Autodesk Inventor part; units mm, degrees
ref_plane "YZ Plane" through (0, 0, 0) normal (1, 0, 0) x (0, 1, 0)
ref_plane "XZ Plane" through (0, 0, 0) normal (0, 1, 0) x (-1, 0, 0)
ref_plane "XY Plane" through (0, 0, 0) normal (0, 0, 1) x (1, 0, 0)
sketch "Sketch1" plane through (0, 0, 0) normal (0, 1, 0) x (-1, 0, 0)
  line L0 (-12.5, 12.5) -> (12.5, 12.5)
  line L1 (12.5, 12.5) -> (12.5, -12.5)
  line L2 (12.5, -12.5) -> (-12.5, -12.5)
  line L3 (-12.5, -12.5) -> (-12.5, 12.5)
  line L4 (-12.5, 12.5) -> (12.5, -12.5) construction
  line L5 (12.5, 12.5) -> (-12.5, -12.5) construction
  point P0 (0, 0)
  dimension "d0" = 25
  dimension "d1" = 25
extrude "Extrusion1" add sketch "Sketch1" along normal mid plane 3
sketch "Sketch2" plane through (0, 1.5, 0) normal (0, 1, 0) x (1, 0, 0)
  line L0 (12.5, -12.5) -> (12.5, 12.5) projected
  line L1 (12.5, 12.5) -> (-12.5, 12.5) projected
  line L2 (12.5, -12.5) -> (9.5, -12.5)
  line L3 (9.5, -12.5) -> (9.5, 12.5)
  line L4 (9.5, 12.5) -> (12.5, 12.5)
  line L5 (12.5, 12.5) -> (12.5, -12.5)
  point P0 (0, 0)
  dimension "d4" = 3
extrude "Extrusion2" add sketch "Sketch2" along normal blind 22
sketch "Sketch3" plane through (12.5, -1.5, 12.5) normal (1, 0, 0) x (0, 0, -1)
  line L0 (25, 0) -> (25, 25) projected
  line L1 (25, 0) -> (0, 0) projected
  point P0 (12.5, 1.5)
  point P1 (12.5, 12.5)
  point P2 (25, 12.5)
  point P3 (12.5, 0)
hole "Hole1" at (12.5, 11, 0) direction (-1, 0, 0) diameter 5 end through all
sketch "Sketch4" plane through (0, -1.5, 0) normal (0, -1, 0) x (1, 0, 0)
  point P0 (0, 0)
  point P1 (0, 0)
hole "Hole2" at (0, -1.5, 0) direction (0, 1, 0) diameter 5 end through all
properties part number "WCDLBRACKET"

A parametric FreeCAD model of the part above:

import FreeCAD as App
import Part
import Sketcher

doc = App.newDocument("Part")
body = doc.addObject("PartDesign::Body", "Body")

# Sketch on XZ plane
sketch1 = body.newObject("Sketcher::SketchObject", "Sketch")
sketch1.AttachmentSupport = (doc.getObject("XZ_Plane"), [""])
sketch1.MapMode = "FlatFace"
sketch1.addGeometry(Part.LineSegment(App.Vector(-12.5, 12.5, 0), App.Vector(12.5, 12.5, 0)), False)
sketch1.addGeometry(Part.LineSegment(App.Vector(12.5, 12.5, 0), App.Vector(12.5, -12.5, 0)), False)
sketch1.addGeometry(Part.LineSegment(App.Vector(12.5, -12.5, 0), App.Vector(-12.5, -12.5, 0)), False)
sketch1.addGeometry(Part.LineSegment(App.Vector(-12.5, -12.5, 0), App.Vector(-12.5, 12.5, 0)), False)
sketch1.addConstraint(Sketcher.Constraint("Coincident", 0, 2, 1, 1))
sketch1.addConstraint(Sketcher.Constraint("Coincident", 1, 2, 2, 1))
sketch1.addConstraint(Sketcher.Constraint("Coincident", 2, 2, 3, 1))
sketch1.addConstraint(Sketcher.Constraint("Coincident", 3, 2, 0, 1))
sketch1.addConstraint(Sketcher.Constraint("Horizontal", 0))
sketch1.addConstraint(Sketcher.Constraint("Vertical", 1))
sketch1.addConstraint(Sketcher.Constraint("Horizontal", 2))
sketch1.addConstraint(Sketcher.Constraint("Vertical", 3))
sketch1.addConstraint(Sketcher.Constraint("Symmetric", 0, 2, 2, 2, -1, 1))
sketch1.addConstraint(Sketcher.Constraint("Equal", 2, 1))
sketch1.addConstraint(Sketcher.Constraint("DistanceX", 0, 1, 0, 2, 25.0))
pad1 = body.newObject("PartDesign::Pad", "Pad")
pad1.Profile = sketch1
pad1.Length = 3
pad1.Midplane = True

# Sketch on XZ plane
sketch2 = body.newObject("Sketcher::SketchObject", "Sketch001")
sketch2.AttachmentSupport = (doc.getObject("XZ_Plane"), [""])
sketch2.MapMode = "FlatFace"
sketch2.AttachmentOffset = App.Placement(App.Vector(0, 0, -1.5), App.Rotation())
sketch2.addGeometry(Part.LineSegment(App.Vector(9.5, 12.5, 0), App.Vector(12.5, 12.5, 0)), False)
sketch2.addGeometry(Part.LineSegment(App.Vector(12.5, 12.5, 0), App.Vector(12.5, -12.5, 0)), False)
sketch2.addGeometry(Part.LineSegment(App.Vector(12.5, -12.5, 0), App.Vector(9.5, -12.5, 0)), False)
sketch2.addGeometry(Part.LineSegment(App.Vector(9.5, -12.5, 0), App.Vector(9.5, 12.5, 0)), False)
sketch2.addConstraint(Sketcher.Constraint("Coincident", 0, 2, 1, 1))
sketch2.addConstraint(Sketcher.Constraint("Coincident", 1, 2, 2, 1))
sketch2.addConstraint(Sketcher.Constraint("Coincident", 2, 2, 3, 1))
sketch2.addConstraint(Sketcher.Constraint("Coincident", 3, 2, 0, 1))
sketch2.addConstraint(Sketcher.Constraint("Horizontal", 0))
sketch2.addConstraint(Sketcher.Constraint("Vertical", 1))
sketch2.addConstraint(Sketcher.Constraint("Horizontal", 2))
sketch2.addConstraint(Sketcher.Constraint("Vertical", 3))
sketch2.addConstraint(Sketcher.Constraint("DistanceX", 0, 1, 0, 2, 3.0))
sketch2.addConstraint(Sketcher.Constraint("DistanceY", 1, 2, 1, 1, 25.0))
sketch2.addConstraint(Sketcher.Constraint("DistanceX", -1, 1, 0, 2, 12.5))
sketch2.addConstraint(Sketcher.Constraint("DistanceY", -1, 1, 0, 2, 12.5))
pad2 = body.newObject("PartDesign::Pad", "Pad001")
pad2.Profile = sketch2
pad2.Length = 22
pad2.Reversed = True

# Sketch on YZ plane
sketch3 = body.newObject("Sketcher::SketchObject", "Sketch002")
sketch3.AttachmentSupport = (doc.getObject("YZ_Plane"), [""])
sketch3.MapMode = "FlatFace"
sketch3.AttachmentOffset = App.Placement(App.Vector(0, 0, 12.5), App.Rotation())
sketch3.addGeometry(Part.Circle(App.Vector(11, 0, 0), App.Vector(0, 0, 1), 2.5), False)
sketch3.addConstraint(Sketcher.Constraint("PointOnObject", 0, 3, -1))
sketch3.addConstraint(Sketcher.Constraint("Diameter", 0, 5.0))
sketch3.addConstraint(Sketcher.Constraint("DistanceX", -1, 1, 0, 3, 11.0))
doc.recompute()
hole = body.newObject("PartDesign::Hole", "Hole")
hole.Profile = sketch3
hole.ThreadType = "None"
hole.Diameter = 5
hole.DepthType = "ThroughAll"

# Sketch on XZ plane
sketch4 = body.newObject("Sketcher::SketchObject", "Sketch003")
sketch4.AttachmentSupport = (doc.getObject("XZ_Plane"), [""])
sketch4.MapMode = "FlatFace"
sketch4.AttachmentOffset = App.Placement(App.Vector(0, 0, 1.5), App.Rotation())
sketch4.addGeometry(Part.Circle(App.Vector(0, 0, 0), App.Vector(0, 0, 1), 2.5), False)
sketch4.addConstraint(Sketcher.Constraint("Coincident", 0, 3, -1, 1))
sketch4.addConstraint(Sketcher.Constraint("Diameter", 0, 5.0))
doc.recompute()
hole2 = body.newObject("PartDesign::Hole", "Hole001")
hole2.Profile = sketch4
hole2.ThreadType = "None"
hole2.Diameter = 5
hole2.DepthType = "ThroughAll"

doc.recompute()
